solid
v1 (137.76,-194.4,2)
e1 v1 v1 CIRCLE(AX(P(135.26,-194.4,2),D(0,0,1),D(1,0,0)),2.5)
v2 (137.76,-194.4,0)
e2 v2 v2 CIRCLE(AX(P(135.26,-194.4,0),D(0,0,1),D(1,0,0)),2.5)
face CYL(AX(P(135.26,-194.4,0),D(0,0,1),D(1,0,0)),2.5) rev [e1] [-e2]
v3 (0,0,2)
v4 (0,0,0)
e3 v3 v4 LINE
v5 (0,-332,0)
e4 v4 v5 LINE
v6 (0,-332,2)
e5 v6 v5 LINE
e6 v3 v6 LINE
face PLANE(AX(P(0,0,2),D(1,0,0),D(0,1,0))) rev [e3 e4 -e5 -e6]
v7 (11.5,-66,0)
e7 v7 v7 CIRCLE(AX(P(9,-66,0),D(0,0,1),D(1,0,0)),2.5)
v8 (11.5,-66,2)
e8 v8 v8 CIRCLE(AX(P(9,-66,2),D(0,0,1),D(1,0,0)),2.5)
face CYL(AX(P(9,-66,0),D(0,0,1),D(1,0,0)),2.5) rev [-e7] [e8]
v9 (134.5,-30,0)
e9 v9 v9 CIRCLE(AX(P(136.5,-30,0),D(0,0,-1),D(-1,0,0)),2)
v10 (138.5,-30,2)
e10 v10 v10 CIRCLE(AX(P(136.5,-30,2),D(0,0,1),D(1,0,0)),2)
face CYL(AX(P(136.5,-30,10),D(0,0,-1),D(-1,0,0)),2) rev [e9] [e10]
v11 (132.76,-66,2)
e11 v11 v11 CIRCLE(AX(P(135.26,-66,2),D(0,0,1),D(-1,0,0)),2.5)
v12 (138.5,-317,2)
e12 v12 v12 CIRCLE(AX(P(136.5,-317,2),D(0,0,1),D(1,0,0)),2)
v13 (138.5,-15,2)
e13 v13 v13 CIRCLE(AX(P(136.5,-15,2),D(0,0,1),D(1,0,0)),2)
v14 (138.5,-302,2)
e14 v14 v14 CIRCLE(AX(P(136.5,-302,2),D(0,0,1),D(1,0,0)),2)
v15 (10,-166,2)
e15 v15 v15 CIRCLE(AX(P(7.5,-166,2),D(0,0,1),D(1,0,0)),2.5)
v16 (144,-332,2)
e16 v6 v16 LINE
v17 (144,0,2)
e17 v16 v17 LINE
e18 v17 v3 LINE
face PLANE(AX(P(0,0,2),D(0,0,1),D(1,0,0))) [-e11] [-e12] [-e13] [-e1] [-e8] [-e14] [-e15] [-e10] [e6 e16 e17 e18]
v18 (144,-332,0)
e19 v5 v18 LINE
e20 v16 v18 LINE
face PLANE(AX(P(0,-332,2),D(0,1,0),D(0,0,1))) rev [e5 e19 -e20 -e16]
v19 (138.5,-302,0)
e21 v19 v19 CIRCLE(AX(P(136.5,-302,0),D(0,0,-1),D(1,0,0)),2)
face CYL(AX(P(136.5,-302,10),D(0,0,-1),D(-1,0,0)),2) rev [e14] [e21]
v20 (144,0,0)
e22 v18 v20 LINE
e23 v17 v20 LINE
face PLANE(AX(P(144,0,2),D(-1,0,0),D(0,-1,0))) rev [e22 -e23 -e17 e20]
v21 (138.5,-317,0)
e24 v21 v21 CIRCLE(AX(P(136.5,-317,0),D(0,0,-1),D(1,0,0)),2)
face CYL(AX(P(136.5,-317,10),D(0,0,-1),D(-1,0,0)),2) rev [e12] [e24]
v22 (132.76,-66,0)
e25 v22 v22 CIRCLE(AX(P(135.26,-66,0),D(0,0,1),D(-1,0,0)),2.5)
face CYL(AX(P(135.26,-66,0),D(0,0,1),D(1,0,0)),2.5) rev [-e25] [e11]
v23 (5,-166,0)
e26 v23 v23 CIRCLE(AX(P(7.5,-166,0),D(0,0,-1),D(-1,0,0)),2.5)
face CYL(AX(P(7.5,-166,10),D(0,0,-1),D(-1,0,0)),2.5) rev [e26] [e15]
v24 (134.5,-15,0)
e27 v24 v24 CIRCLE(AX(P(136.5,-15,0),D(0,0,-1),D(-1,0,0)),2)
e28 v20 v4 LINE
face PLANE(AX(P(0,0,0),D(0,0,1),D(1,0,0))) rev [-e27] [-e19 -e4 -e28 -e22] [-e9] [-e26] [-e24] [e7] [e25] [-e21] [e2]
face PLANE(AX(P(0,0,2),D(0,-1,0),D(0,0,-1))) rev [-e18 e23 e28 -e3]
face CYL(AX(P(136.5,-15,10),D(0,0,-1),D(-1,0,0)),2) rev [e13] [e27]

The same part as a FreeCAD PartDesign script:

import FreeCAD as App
import Part
import Sketcher
from FreeCAD import Vector

doc = App.newDocument("Part")
body = doc.addObject("PartDesign::Body", "Body")

# Sketch on XY plane
sketch1 = body.newObject("Sketcher::SketchObject", "Sketch")
sketch1.AttachmentSupport = (doc.getObject("XY_Plane"), [""])
sketch1.MapMode = "FlatFace"
sketch1.addGeometry([
    Part.LineSegment(Vector(0, 0, 0), Vector(0, -332, 0)),
    Part.LineSegment(Vector(0, -332, 0), Vector(144, -332, 0)),
    Part.LineSegment(Vector(144, -332, 0), Vector(144, 0, 0)),
    Part.LineSegment(Vector(144, 0, 0), Vector(0, 0, 0)),
], False)
sketch1.addConstraint([
    Sketcher.Constraint("Coincident", 0, 2, 1, 1),
    Sketcher.Constraint("Coincident", 1, 2, 2, 1),
    Sketcher.Constraint("Coincident", 2, 2, 3, 1),
    Sketcher.Constraint("Coincident", 3, 2, 0, 1),
    Sketcher.Constraint("Vertical", 0),
    Sketcher.Constraint("Horizontal", 1),
    Sketcher.Constraint("Vertical", 2),
    Sketcher.Constraint("Horizontal", 3),
    Sketcher.Constraint("Coincident", 3, 2, -1, 1),
    Sketcher.Constraint("DistanceX", 1, 1, 1, 2, 144.0),
    Sketcher.Constraint("DistanceY", 0, 2, 0, 1, 332.0),
])
pad1 = body.newObject("PartDesign::Pad", "Pad")
pad1.Profile = sketch1
pad1.Length = 2

# Sketch on XY plane
sketch2 = body.newObject("Sketcher::SketchObject", "Sketch001")
sketch2.AttachmentSupport = (doc.getObject("XY_Plane"), [""])
sketch2.MapMode = "FlatFace"
sketch2.AttachmentOffset = App.Placement(Vector(0, 0, 2), App.Rotation())
sketch2.addGeometry([
    Part.Circle(Vector(9, -66, 0), Vector(0, 0, 1), 2.5),
    Part.Circle(Vector(135.3, -66, 0), Vector(0, 0, 1), 2.5),
    Part.Circle(Vector(135.3, -194.4, 0), Vector(0, 0, 1), 2.5),
], False)
sketch2.addConstraint([
    Sketcher.Constraint("Equal", 0, 1),
    Sketcher.Constraint("Equal", 1, 2),
    Sketcher.Constraint("Horizontal", 0, 3, 1, 3),
    Sketcher.Constraint("Vertical", 1, 3, 2, 3),
    Sketcher.Constraint("Diameter", 0, 5.0),
    Sketcher.Constraint("DistanceX", -1, 1, 0, 3, 9.0),
    Sketcher.Constraint("DistanceY", 0, 3, -1, 1, 66.0),
    Sketcher.Constraint("DistanceY", 2, 3, -1, 1, 194.4),
    Sketcher.Constraint("DistanceX", -1, 1, 1, 3, 135.26),
])
pocket1 = body.newObject("PartDesign::Pocket", "Pocket")
pocket1.Profile = sketch2
pocket1.Length = 2

# Sketch on XY plane
sketch3 = body.newObject("Sketcher::SketchObject", "Sketch002")
sketch3.AttachmentSupport = (doc.getObject("XY_Plane"), [""])
sketch3.MapMode = "FlatFace"
sketch3.addGeometry([
    Part.Circle(Vector(136.5, -15, 0), Vector(0, 0, 1), 2),  # 0
    Part.Circle(Vector(136.5, -30, 0), Vector(0, 0, 1), 2),  # 1
    Part.Circle(Vector(136.5, -302, 0), Vector(0, 0, 1), 2),  # 2
    Part.Circle(Vector(136.5, -317, 0), Vector(0, 0, 1), 2),  # 3
    Part.Circle(Vector(7.5, -166, 0), Vector(0, 0, 1), 2.5),  # 4
], False)
sketch3.addConstraint([
    Sketcher.Constraint("Equal", 0, 1),
    Sketcher.Constraint("Equal", 1, 2),
    Sketcher.Constraint("Equal", 2, 3),
    Sketcher.Constraint("Vertical", 0, 3, 1, 3),
    Sketcher.Constraint("Vertical", 1, 3, 2, 3),
    Sketcher.Constraint("Vertical", 2, 3, 3, 3),
    Sketcher.Constraint("Diameter", 0, 4.0),
    Sketcher.Constraint("Diameter", 4, 5.0),
    Sketcher.Constraint("DistanceY", 0, 3, -1, 1, 15.0),
    Sketcher.Constraint("DistanceY", 1, 3, -1, 1, 30.0),
    Sketcher.Constraint("DistanceY", 2, 3, -1, 1, 302.0),
    Sketcher.Constraint("DistanceY", 3, 3, -1, 1, 317.0),
    Sketcher.Constraint("DistanceY", 4, 3, -1, 1, 166.0),
    Sketcher.Constraint("DistanceX", 4, 3, 1, 3, 129.0),
    Sketcher.Constraint("DistanceX", -1, 1, 0, 3, 136.5),
])
pocket2 = body.newObject("PartDesign::Pocket", "Pocket001")
pocket2.Profile = sketch3
pocket2.Length = 10
pocket2.Reversed = True

doc.recompute()
